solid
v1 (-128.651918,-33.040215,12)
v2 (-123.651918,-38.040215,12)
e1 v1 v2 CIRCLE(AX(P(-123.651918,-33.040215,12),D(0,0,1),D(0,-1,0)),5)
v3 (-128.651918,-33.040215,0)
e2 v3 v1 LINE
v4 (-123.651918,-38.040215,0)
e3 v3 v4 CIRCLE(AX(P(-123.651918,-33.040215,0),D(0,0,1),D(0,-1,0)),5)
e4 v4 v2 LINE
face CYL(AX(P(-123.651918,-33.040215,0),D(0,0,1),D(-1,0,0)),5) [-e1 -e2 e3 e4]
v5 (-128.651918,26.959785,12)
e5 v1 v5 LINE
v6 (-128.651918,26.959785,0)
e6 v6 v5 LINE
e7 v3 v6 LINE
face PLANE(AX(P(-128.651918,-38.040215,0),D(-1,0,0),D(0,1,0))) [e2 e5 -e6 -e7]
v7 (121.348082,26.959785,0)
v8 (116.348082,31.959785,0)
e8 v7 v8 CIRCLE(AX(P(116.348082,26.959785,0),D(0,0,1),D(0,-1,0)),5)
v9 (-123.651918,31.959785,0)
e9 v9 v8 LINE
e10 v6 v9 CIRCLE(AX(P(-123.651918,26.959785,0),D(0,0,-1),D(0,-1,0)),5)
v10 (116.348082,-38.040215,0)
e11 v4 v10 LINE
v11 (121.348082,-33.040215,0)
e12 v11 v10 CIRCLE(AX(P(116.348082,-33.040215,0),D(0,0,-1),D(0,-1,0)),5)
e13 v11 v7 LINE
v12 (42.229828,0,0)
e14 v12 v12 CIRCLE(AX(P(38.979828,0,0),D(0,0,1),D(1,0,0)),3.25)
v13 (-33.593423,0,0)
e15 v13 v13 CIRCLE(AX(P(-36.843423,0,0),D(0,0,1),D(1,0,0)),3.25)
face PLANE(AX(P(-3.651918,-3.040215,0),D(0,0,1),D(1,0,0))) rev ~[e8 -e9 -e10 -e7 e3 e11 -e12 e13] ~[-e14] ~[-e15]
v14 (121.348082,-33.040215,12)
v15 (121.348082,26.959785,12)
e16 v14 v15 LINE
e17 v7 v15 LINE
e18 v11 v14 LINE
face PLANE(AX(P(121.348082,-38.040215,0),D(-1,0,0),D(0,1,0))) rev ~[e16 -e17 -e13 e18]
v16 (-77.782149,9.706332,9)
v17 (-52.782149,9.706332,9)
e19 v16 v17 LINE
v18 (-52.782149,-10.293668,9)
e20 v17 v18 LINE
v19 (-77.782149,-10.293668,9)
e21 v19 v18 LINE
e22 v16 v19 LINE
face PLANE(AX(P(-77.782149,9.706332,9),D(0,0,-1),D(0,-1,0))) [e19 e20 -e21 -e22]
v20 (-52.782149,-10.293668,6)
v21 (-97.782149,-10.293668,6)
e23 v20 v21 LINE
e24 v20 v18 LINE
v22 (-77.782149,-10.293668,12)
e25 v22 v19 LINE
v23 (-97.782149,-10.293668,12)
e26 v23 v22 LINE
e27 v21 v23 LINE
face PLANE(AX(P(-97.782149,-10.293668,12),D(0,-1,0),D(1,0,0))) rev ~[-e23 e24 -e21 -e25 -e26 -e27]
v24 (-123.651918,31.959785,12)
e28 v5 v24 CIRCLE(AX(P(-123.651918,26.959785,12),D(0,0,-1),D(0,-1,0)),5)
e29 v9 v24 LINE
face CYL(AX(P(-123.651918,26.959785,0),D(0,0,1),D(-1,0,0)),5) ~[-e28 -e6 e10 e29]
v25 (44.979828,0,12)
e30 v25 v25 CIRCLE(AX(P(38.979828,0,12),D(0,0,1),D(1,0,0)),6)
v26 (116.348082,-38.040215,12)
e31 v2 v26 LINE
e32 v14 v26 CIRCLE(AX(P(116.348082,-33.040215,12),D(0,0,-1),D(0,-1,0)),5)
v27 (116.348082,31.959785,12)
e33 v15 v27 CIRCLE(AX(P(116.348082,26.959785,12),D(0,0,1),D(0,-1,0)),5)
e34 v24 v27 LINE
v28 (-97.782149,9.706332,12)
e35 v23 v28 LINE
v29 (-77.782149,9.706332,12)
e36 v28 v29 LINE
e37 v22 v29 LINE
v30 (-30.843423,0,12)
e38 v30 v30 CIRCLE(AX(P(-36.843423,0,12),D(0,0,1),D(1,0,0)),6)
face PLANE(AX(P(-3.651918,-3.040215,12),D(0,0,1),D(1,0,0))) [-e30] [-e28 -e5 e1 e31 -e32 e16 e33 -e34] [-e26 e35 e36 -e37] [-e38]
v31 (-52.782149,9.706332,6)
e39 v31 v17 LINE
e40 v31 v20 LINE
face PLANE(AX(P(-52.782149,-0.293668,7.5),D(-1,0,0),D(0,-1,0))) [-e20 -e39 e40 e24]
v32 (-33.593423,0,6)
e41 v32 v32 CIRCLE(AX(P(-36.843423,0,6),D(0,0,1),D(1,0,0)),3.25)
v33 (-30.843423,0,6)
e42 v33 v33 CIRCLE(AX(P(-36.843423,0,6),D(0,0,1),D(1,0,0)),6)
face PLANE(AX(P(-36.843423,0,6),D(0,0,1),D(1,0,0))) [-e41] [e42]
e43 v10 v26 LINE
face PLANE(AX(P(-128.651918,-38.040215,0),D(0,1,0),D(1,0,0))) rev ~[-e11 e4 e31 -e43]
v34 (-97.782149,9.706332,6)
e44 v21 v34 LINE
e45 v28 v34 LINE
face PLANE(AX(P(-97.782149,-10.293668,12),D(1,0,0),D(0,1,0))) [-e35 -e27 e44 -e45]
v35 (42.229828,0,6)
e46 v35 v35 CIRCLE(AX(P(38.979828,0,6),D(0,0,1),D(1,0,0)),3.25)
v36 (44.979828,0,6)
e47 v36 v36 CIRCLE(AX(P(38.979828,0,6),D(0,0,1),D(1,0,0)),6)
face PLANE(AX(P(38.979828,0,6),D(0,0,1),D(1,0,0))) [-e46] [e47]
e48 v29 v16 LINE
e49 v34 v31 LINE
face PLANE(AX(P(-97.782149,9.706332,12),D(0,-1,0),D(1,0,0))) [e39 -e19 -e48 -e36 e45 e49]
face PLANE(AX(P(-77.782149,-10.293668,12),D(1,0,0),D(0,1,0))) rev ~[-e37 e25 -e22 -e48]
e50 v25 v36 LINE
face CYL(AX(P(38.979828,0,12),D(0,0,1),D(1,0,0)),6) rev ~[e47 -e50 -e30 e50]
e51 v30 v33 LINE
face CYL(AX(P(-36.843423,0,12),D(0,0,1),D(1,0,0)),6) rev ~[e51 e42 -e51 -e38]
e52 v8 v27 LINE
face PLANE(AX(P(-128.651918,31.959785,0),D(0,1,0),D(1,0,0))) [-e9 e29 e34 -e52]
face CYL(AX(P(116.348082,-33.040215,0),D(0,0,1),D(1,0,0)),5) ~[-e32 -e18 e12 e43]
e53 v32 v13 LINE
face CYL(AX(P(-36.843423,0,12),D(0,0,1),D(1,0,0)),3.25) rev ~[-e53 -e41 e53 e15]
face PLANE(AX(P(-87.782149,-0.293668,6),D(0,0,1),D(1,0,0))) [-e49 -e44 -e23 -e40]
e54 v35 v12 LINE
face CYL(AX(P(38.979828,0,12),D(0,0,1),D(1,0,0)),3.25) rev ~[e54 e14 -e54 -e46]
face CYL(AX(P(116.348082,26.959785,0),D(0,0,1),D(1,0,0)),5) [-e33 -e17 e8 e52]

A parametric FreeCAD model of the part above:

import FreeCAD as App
import Part
import Sketcher

V = App.Vector
Q = App.Units.Quantity


def edges_at(feature, points):
    """Names of the edges that pass closest to the given points."""
    edges = feature.Shape.Edges
    near = lambda p: min(range(len(edges)), key=lambda i: edges[i].distToShape(Part.Vertex(*p))[0])
    return sorted({f"Edge{near(p) + 1}" for p in points})

doc = App.newDocument("Part")
body = doc.addObject("PartDesign::Body", "Body")

# Sketch on XY plane
sketch1 = body.newObject("Sketcher::SketchObject", "Sketch")
sketch1.AttachmentSupport = (doc.getObject("XY_Plane"), [""])
sketch1.MapMode = "FlatFace"
sketch1.addGeometry([
    Part.LineSegment(V(-129, 32, 0), V(-129, -38, 0)),
    Part.LineSegment(V(-129, -38, 0), V(121, -38, 0)),
    Part.LineSegment(V(121, -38, 0), V(121, 32, 0)),
    Part.LineSegment(V(121, 32, 0), V(-129, 32, 0)),
], False)
sketch1.addConstraint([
    Sketcher.Constraint("Coincident", 0, 2, 1, 1),
    Sketcher.Constraint("Coincident", 1, 2, 2, 1),
    Sketcher.Constraint("Coincident", 2, 2, 3, 1),
    Sketcher.Constraint("Coincident", 3, 2, 0, 1),
    Sketcher.Constraint("Vertical", 0),
    Sketcher.Constraint("Horizontal", 1),
    Sketcher.Constraint("Vertical", 2),
    Sketcher.Constraint("Horizontal", 3),
    Sketcher.Constraint("DistanceX", 1, 1, 1, 2, Q("250 mm")),
    Sketcher.Constraint("DistanceY", 0, 2, 0, 1, Q("70 mm")),
    Sketcher.Constraint("DistanceX", 0, 2, -1, 1, Q("128.651918 mm")),
    Sketcher.Constraint("DistanceY", 0, 2, -1, 1, Q("38.040215 mm")),
])
pad1 = body.newObject("PartDesign::Pad", "Pad")
pad1.Profile = sketch1
pad1.Length = 12

# Sketch on XY plane
sketch2 = body.newObject("Sketcher::SketchObject", "Sketch001")
sketch2.AttachmentSupport = (doc.getObject("XY_Plane"), [""])
sketch2.MapMode = "FlatFace"
sketch2.AttachmentOffset = App.Placement(V(0, 0, 12), App.Rotation())
sketch2.addGeometry([
    Part.Circle(V(-36.8, 0, 0), V(0, 0, 1), 3.2),
    Part.Circle(V(39, 0, 0), V(0, 0, 1), 3.2),
], False)
sketch2.addConstraint([
    Sketcher.Constraint("Equal", 0, 1),
    Sketcher.Constraint("PointOnObject", 0, 3, -1),
    Sketcher.Constraint("PointOnObject", 1, 3, -1),
    Sketcher.Constraint("Diameter", 0, Q("6.5 mm")),
    Sketcher.Constraint("DistanceX", 0, 3, 1, 3, Q("75.823251 mm")),
    Sketcher.Constraint("DistanceX", 0, 3, -1, 1, Q("36.843423 mm")),
])
pocket1 = body.newObject("PartDesign::Pocket", "Pocket")
pocket1.Profile = sketch2
pocket1.Length = 25

# Sketch on XY plane
sketch3 = body.newObject("Sketcher::SketchObject", "Sketch002")
sketch3.AttachmentSupport = (doc.getObject("XY_Plane"), [""])
sketch3.MapMode = "FlatFace"
sketch3.AttachmentOffset = App.Placement(V(0, 0, 12), App.Rotation())
sketch3.addGeometry([
    Part.Circle(V(-37, 0, 0), V(0, 0, 1), 6),
    Part.Circle(V(39, 0, 0), V(0, 0, 1), 6),
], False)
sketch3.addConstraint([
    Sketcher.Constraint("Equal", 0, 1),
    Sketcher.Constraint("PointOnObject", 0, 3, -1),
    Sketcher.Constraint("PointOnObject", 1, 3, -1),
    Sketcher.Constraint("Diameter", 0, Q("12 mm")),
    Sketcher.Constraint("DistanceX", 0, 3, 1, 3, Q("75.823251 mm")),
    Sketcher.Constraint("DistanceX", 0, 3, -1, 1, Q("36.843423 mm")),
])
pocket2 = body.newObject("PartDesign::Pocket", "Pocket001")
pocket2.Profile = sketch3
pocket2.Length = 6

# Sketch on XY plane
sketch4 = body.newObject("Sketcher::SketchObject", "Sketch003")
sketch4.AttachmentSupport = (doc.getObject("XY_Plane"), [""])
sketch4.MapMode = "FlatFace"
sketch4.AttachmentOffset = App.Placement(V(0, 0, 12), App.Rotation())
sketch4.addGeometry([
    Part.LineSegment(V(-98, 10, 0), V(-98, -10, 0)),
    Part.LineSegment(V(-98, -10, 0), V(-78, -10, 0)),
    Part.LineSegment(V(-78, -10, 0), V(-78, 10, 0)),
    Part.LineSegment(V(-78, 10, 0), V(-98, 10, 0)),
], False)
sketch4.addConstraint([
    Sketcher.Constraint("Coincident", 0, 2, 1, 1),
    Sketcher.Constraint("Coincident", 1, 2, 2, 1),
    Sketcher.Constraint("Coincident", 2, 2, 3, 1),
    Sketcher.Constraint("Coincident", 3, 2, 0, 1),
    Sketcher.Constraint("Vertical", 0),
    Sketcher.Constraint("Horizontal", 1),
    Sketcher.Constraint("Vertical", 2),
    Sketcher.Constraint("Horizontal", 3),
    Sketcher.Constraint("Equal", 3, 0),
    Sketcher.Constraint("DistanceX", 1, 1, 1, 2, Q("20 mm")),
    Sketcher.Constraint("DistanceX", 0, 2, -1, 1, Q("97.782149 mm")),
    Sketcher.Constraint("DistanceY", 0, 2, -1, 1, Q("10.293668 mm")),
])
pocket3 = body.newObject("PartDesign::Pocket", "Pocket002")
pocket3.Profile = sketch4
pocket3.Length = 6

# Sketch on YZ plane
sketch5 = body.newObject("Sketcher::SketchObject", "Sketch004")
sketch5.AttachmentSupport = (doc.getObject("YZ_Plane"), [""])
sketch5.MapMode = "FlatFace"
sketch5.AttachmentOffset = App.Placement(V(0, 0, -77.782149), App.Rotation())
sketch5.addGeometry([
    Part.LineSegment(V(9.7, 9, 0), V(9.7, 6, 0)),
    Part.LineSegment(V(9.7, 6, 0), V(-10.3, 6, 0)),
    Part.LineSegment(V(-10.3, 6, 0), V(-10.3, 9, 0)),
    Part.LineSegment(V(-10.3, 9, 0), V(9.7, 9, 0)),
], False)
sketch5.addConstraint([
    Sketcher.Constraint("Coincident", 0, 2, 1, 1),
    Sketcher.Constraint("Coincident", 1, 2, 2, 1),
    Sketcher.Constraint("Coincident", 2, 2, 3, 1),
    Sketcher.Constraint("Coincident", 3, 2, 0, 1),
    Sketcher.Constraint("Vertical", 0),
    Sketcher.Constraint("Horizontal", 1),
    Sketcher.Constraint("Vertical", 2),
    Sketcher.Constraint("Horizontal", 3),
    Sketcher.Constraint("DistanceX", 1, 2, 1, 1, Q("20 mm")),
    Sketcher.Constraint("DistanceY", 0, 2, 0, 1, Q("3 mm")),
    Sketcher.Constraint("DistanceY", -1, 1, 0, 2, Q("6 mm")),
    Sketcher.Constraint("DistanceX", -1, 1, 0, 2, Q("9.706332 mm")),
])
pocket4 = body.newObject("PartDesign::Pocket", "Pocket003")
pocket4.Profile = sketch5
pocket4.Type = "TwoLengths"
pocket4.Length = 20
pocket4.Length2 = 25
doc.recompute()

fillet = body.newObject("PartDesign::Fillet", "Fillet")
fillet.Base = (pocket4, edges_at(pocket4, [
    (-128.652, -38.04, 6),
    (-128.652, 31.96, 6),
    (121.348, -38.04, 6),
    (121.348, 31.96, 6),
]))
fillet.Radius = 5

doc.recompute()
